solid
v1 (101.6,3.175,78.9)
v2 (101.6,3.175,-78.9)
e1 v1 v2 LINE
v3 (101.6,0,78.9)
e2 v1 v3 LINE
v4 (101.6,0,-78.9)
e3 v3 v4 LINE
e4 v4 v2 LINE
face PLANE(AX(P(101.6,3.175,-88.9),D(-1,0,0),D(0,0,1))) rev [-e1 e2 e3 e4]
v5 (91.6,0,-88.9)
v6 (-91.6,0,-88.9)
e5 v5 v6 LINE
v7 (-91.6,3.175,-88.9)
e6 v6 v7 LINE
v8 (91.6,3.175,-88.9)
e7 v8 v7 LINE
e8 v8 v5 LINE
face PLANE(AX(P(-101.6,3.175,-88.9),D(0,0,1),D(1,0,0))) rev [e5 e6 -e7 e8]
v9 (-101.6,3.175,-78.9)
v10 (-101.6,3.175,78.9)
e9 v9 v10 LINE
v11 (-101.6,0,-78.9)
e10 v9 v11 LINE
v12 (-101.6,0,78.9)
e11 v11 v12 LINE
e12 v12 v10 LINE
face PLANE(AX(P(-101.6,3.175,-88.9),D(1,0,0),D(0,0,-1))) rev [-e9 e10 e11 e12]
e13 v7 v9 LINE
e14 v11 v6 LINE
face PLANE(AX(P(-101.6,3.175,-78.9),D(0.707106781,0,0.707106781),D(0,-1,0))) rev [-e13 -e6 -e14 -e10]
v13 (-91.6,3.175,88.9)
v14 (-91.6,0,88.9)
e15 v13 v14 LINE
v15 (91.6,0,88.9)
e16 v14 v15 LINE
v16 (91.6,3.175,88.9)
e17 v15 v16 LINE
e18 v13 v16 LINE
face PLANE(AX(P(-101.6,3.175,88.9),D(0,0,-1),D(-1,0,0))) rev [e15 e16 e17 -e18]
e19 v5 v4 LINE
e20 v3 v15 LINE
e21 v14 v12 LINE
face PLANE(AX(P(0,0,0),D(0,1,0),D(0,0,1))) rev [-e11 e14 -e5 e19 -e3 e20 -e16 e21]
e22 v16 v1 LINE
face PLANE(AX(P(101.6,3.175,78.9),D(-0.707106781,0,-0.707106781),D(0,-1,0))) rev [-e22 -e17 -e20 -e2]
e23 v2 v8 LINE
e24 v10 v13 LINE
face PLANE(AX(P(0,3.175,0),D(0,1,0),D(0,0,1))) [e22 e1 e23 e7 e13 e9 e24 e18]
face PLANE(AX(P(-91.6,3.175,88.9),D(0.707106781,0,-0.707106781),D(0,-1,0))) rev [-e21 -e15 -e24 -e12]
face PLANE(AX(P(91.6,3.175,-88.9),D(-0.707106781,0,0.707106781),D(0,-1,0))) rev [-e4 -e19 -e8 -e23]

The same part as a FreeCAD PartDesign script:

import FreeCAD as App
import Part
import Sketcher
from FreeCAD import Vector
Q = App.Units.Quantity


def edges_at(feature, points):
    """Names of the edges that pass closest to the given points."""
    edges = feature.Shape.Edges
    near = lambda p: min(range(len(edges)), key=lambda i: edges[i].distToShape(Part.Vertex(*p))[0])
    return sorted({f"Edge{near(p) + 1}" for p in points})


def add_polygon(sketch, points):
    """Adds a closed chain of lines whose ends are joined by coincident constraints."""
    first, n = sketch.GeometryCount, len(points)
    for a, b in zip(points, points[1:] + points[:1]):
        sketch.addGeometry(Part.LineSegment(App.Vector(*a, 0), App.Vector(*b, 0)), False)
    for i in range(n):
        sketch.addConstraint(Sketcher.Constraint("Coincident", first + i, 2, first + (i + 1) % n, 1))

doc = App.newDocument("Part")
params = doc.addObject("Spreadsheet::Sheet", "Params")
for row, (alias, value) in enumerate([
    ("sketch1_width", "8 in"),
    ("sketch1_height", "7 in"),
    ("pad1_length", "0.125 in"),
    ("chamfer_size", "10 mm"),
], start=1):
    params.set(f"A{row}", alias)
    params.set(f"B{row}", "=" + value)
    params.setAlias(f"B{row}", alias)

body = doc.addObject("PartDesign::Body", "Body")

sketch1 = body.newObject("Sketcher::SketchObject", "Sketch")
sketch1.AttachmentSupport = (doc.getObject("XZ_Plane"), [""])
sketch1.MapMode = "FlatFace"
add_polygon(sketch1, [(-102, -89), (-102, 89), (102, 89), (102, -89)])
sketch1.addConstraint([
    Sketcher.Constraint("Vertical", 0),
    Sketcher.Constraint("Horizontal", 1),
    Sketcher.Constraint("Vertical", 2),
    Sketcher.Constraint("Horizontal", 3),
    Sketcher.Constraint("Symmetric", 0, 2, 2, 2, -1, 1),
    Sketcher.Constraint("DistanceX", 1, 1, 1, 2, Q("8 in")),
    Sketcher.Constraint("DistanceY", 0, 1, 0, 2, Q("7 in")),
])
sketch1.setExpression("Constraints[9]", "Params.sketch1_width")
sketch1.setExpression("Constraints[10]", "Params.sketch1_height")
pad1 = body.newObject("PartDesign::Pad", "Pad")
pad1.Profile = sketch1
pad1.setExpression("Length", "Params.pad1_length")
pad1.Reversed = True
doc.recompute()

chamfer = body.newObject("PartDesign::Chamfer", "Chamfer")
chamfer.Base = (pad1, edges_at(pad1, [
    (101.6, 1.587, 88.9),
    (-101.6, 1.587, 88.9),
    (-101.6, 1.587, -88.9),
    (101.6, 1.587, -88.9),
]))
chamfer.setExpression("Size", "Params.chamfer_size")

doc.recompute()
